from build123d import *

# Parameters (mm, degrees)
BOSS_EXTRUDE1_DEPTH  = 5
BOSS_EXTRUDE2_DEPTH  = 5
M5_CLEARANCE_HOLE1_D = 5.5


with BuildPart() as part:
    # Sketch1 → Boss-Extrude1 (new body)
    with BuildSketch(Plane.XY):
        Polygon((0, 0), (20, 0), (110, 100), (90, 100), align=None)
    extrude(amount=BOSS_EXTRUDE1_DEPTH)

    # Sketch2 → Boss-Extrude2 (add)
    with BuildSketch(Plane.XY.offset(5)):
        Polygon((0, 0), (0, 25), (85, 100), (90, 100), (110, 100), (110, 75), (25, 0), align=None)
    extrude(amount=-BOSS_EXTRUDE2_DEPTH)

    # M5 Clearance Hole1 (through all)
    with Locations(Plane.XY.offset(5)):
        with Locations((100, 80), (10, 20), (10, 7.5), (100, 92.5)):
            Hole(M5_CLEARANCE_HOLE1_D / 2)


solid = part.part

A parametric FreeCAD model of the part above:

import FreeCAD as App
import Part
import Sketcher
Q = App.Units.Quantity


def add_polygon(sketch, points):
    """Adds a closed chain of lines whose ends are joined by coincident constraints."""
    first, n = sketch.GeometryCount, len(points)
    for a, b in zip(points, points[1:] + points[:1]):
        sketch.addGeometry(Part.LineSegment(App.Vector(*a, 0), App.Vector(*b, 0)), False)
    for i in range(n):
        sketch.addConstraint(Sketcher.Constraint("Coincident", first + i, 2, first + (i + 1) % n, 1))

doc = App.newDocument("Part")
body = doc.addObject("PartDesign::Body", "Body")

# Sketch on XY plane
sketch1 = body.newObject("Sketcher::SketchObject", "Sketch")
sketch1.AttachmentSupport = (doc.getObject("XY_Plane"), [""])
sketch1.MapMode = "FlatFace"
add_polygon(sketch1, [(0, 0), (20, 0), (110, 100), (90, 100)])  # lines 0-3
sketch1.addConstraint([
    Sketcher.Constraint("Horizontal", 0),
    Sketcher.Constraint("Horizontal", 2),
    Sketcher.Constraint("Coincident", 3, 2, -1, 1),
    Sketcher.Constraint("Parallel", 1, 3),
    Sketcher.Constraint("DistanceX", 0, 1, 0, 2, Q("20 mm")),
    Sketcher.Constraint("DistanceX", -1, 1, 1, 2, Q("110 mm")),
    Sketcher.Constraint("DistanceY", -1, 1, 1, 2, Q("100 mm")),
])
pad1 = body.newObject("PartDesign::Pad", "Pad")
pad1.Profile = sketch1
pad1.Length = 5

# Sketch on XY plane
sketch2 = body.newObject("Sketcher::SketchObject", "Sketch001")
sketch2.AttachmentSupport = (doc.getObject("XY_Plane"), [""])
sketch2.MapMode = "FlatFace"
sketch2.AttachmentOffset = App.Placement(App.Vector(0, 0, 5), App.Rotation())
add_polygon(sketch2, [(0, 25), (0, 0), (25, 0), (110, 75), (110, 100), (85, 100)])  # lines 0-5
sketch2.addConstraint([
    Sketcher.Constraint("Vertical", 0),
    Sketcher.Constraint("Horizontal", 1),
    Sketcher.Constraint("Vertical", 3),
    Sketcher.Constraint("Horizontal", 4),
    Sketcher.Constraint("Coincident", 0, 2, -1, 1),
    Sketcher.Constraint("Parallel", 2, 5),
    Sketcher.Constraint("Equal", 1, 4),
    Sketcher.Constraint("Equal", 4, 0),
    Sketcher.Constraint("DistanceX", 1, 1, 1, 2, Q("25 mm")),
    Sketcher.Constraint("DistanceX", -1, 1, 2, 2, Q("110 mm")),
    Sketcher.Constraint("DistanceY", -1, 1, 2, 2, Q("75 mm")),
])
pad2 = body.newObject("PartDesign::Pad", "Pad001")
pad2.Profile = sketch2
pad2.Length = 5
pad2.Reversed = True

# Sketch on XY plane
sketch3 = body.newObject("Sketcher::SketchObject", "Sketch002")
sketch3.AttachmentSupport = (doc.getObject("XY_Plane"), [""])
sketch3.MapMode = "FlatFace"
sketch3.AttachmentOffset = App.Placement(App.Vector(0, 0, 5), App.Rotation())
sketch3.addGeometry([
    Part.Circle(App.Vector(100, 80, 0), App.Vector(0, 0, 1), 2.75),
    Part.Circle(App.Vector(10, 20, 0), App.Vector(0, 0, 1), 2.75),
    Part.Circle(App.Vector(10, 7.5, 0), App.Vector(0, 0, 1), 2.75),
    Part.Circle(App.Vector(100, 92.5, 0), App.Vector(0, 0, 1), 2.75),
], False)
sketch3.addConstraint([
    Sketcher.Constraint("Equal", 0, 1),
    Sketcher.Constraint("Equal", 1, 2),
    Sketcher.Constraint("Equal", 2, 3),
    Sketcher.Constraint("Vertical", 1, 3, 2, 3),
    Sketcher.Constraint("Vertical", 0, 3, 3, 3),
    Sketcher.Constraint("Diameter", 0, Q("5.5 mm")),
    Sketcher.Constraint("DistanceX", -1, 1, 0, 3, Q("100 mm")),
    Sketcher.Constraint("DistanceY", -1, 1, 0, 3, Q("80 mm")),
    Sketcher.Constraint("DistanceX", -1, 1, 1, 3, Q("10 mm")),
    Sketcher.Constraint("DistanceY", -1, 1, 1, 3, Q("20 mm")),
    Sketcher.Constraint("DistanceY", 2, 3, 3, 3, Q("85 mm")),
    Sketcher.Constraint("DistanceY", -1, 1, 2, 3, Q("7.5 mm")),
])
doc.recompute()
hole = body.newObject("PartDesign::Hole", "Hole")
hole.Profile = sketch3
hole.ThreadType = "None"
hole.Diameter = 5.5
hole.DepthType = "ThroughAll"

doc.recompute()
